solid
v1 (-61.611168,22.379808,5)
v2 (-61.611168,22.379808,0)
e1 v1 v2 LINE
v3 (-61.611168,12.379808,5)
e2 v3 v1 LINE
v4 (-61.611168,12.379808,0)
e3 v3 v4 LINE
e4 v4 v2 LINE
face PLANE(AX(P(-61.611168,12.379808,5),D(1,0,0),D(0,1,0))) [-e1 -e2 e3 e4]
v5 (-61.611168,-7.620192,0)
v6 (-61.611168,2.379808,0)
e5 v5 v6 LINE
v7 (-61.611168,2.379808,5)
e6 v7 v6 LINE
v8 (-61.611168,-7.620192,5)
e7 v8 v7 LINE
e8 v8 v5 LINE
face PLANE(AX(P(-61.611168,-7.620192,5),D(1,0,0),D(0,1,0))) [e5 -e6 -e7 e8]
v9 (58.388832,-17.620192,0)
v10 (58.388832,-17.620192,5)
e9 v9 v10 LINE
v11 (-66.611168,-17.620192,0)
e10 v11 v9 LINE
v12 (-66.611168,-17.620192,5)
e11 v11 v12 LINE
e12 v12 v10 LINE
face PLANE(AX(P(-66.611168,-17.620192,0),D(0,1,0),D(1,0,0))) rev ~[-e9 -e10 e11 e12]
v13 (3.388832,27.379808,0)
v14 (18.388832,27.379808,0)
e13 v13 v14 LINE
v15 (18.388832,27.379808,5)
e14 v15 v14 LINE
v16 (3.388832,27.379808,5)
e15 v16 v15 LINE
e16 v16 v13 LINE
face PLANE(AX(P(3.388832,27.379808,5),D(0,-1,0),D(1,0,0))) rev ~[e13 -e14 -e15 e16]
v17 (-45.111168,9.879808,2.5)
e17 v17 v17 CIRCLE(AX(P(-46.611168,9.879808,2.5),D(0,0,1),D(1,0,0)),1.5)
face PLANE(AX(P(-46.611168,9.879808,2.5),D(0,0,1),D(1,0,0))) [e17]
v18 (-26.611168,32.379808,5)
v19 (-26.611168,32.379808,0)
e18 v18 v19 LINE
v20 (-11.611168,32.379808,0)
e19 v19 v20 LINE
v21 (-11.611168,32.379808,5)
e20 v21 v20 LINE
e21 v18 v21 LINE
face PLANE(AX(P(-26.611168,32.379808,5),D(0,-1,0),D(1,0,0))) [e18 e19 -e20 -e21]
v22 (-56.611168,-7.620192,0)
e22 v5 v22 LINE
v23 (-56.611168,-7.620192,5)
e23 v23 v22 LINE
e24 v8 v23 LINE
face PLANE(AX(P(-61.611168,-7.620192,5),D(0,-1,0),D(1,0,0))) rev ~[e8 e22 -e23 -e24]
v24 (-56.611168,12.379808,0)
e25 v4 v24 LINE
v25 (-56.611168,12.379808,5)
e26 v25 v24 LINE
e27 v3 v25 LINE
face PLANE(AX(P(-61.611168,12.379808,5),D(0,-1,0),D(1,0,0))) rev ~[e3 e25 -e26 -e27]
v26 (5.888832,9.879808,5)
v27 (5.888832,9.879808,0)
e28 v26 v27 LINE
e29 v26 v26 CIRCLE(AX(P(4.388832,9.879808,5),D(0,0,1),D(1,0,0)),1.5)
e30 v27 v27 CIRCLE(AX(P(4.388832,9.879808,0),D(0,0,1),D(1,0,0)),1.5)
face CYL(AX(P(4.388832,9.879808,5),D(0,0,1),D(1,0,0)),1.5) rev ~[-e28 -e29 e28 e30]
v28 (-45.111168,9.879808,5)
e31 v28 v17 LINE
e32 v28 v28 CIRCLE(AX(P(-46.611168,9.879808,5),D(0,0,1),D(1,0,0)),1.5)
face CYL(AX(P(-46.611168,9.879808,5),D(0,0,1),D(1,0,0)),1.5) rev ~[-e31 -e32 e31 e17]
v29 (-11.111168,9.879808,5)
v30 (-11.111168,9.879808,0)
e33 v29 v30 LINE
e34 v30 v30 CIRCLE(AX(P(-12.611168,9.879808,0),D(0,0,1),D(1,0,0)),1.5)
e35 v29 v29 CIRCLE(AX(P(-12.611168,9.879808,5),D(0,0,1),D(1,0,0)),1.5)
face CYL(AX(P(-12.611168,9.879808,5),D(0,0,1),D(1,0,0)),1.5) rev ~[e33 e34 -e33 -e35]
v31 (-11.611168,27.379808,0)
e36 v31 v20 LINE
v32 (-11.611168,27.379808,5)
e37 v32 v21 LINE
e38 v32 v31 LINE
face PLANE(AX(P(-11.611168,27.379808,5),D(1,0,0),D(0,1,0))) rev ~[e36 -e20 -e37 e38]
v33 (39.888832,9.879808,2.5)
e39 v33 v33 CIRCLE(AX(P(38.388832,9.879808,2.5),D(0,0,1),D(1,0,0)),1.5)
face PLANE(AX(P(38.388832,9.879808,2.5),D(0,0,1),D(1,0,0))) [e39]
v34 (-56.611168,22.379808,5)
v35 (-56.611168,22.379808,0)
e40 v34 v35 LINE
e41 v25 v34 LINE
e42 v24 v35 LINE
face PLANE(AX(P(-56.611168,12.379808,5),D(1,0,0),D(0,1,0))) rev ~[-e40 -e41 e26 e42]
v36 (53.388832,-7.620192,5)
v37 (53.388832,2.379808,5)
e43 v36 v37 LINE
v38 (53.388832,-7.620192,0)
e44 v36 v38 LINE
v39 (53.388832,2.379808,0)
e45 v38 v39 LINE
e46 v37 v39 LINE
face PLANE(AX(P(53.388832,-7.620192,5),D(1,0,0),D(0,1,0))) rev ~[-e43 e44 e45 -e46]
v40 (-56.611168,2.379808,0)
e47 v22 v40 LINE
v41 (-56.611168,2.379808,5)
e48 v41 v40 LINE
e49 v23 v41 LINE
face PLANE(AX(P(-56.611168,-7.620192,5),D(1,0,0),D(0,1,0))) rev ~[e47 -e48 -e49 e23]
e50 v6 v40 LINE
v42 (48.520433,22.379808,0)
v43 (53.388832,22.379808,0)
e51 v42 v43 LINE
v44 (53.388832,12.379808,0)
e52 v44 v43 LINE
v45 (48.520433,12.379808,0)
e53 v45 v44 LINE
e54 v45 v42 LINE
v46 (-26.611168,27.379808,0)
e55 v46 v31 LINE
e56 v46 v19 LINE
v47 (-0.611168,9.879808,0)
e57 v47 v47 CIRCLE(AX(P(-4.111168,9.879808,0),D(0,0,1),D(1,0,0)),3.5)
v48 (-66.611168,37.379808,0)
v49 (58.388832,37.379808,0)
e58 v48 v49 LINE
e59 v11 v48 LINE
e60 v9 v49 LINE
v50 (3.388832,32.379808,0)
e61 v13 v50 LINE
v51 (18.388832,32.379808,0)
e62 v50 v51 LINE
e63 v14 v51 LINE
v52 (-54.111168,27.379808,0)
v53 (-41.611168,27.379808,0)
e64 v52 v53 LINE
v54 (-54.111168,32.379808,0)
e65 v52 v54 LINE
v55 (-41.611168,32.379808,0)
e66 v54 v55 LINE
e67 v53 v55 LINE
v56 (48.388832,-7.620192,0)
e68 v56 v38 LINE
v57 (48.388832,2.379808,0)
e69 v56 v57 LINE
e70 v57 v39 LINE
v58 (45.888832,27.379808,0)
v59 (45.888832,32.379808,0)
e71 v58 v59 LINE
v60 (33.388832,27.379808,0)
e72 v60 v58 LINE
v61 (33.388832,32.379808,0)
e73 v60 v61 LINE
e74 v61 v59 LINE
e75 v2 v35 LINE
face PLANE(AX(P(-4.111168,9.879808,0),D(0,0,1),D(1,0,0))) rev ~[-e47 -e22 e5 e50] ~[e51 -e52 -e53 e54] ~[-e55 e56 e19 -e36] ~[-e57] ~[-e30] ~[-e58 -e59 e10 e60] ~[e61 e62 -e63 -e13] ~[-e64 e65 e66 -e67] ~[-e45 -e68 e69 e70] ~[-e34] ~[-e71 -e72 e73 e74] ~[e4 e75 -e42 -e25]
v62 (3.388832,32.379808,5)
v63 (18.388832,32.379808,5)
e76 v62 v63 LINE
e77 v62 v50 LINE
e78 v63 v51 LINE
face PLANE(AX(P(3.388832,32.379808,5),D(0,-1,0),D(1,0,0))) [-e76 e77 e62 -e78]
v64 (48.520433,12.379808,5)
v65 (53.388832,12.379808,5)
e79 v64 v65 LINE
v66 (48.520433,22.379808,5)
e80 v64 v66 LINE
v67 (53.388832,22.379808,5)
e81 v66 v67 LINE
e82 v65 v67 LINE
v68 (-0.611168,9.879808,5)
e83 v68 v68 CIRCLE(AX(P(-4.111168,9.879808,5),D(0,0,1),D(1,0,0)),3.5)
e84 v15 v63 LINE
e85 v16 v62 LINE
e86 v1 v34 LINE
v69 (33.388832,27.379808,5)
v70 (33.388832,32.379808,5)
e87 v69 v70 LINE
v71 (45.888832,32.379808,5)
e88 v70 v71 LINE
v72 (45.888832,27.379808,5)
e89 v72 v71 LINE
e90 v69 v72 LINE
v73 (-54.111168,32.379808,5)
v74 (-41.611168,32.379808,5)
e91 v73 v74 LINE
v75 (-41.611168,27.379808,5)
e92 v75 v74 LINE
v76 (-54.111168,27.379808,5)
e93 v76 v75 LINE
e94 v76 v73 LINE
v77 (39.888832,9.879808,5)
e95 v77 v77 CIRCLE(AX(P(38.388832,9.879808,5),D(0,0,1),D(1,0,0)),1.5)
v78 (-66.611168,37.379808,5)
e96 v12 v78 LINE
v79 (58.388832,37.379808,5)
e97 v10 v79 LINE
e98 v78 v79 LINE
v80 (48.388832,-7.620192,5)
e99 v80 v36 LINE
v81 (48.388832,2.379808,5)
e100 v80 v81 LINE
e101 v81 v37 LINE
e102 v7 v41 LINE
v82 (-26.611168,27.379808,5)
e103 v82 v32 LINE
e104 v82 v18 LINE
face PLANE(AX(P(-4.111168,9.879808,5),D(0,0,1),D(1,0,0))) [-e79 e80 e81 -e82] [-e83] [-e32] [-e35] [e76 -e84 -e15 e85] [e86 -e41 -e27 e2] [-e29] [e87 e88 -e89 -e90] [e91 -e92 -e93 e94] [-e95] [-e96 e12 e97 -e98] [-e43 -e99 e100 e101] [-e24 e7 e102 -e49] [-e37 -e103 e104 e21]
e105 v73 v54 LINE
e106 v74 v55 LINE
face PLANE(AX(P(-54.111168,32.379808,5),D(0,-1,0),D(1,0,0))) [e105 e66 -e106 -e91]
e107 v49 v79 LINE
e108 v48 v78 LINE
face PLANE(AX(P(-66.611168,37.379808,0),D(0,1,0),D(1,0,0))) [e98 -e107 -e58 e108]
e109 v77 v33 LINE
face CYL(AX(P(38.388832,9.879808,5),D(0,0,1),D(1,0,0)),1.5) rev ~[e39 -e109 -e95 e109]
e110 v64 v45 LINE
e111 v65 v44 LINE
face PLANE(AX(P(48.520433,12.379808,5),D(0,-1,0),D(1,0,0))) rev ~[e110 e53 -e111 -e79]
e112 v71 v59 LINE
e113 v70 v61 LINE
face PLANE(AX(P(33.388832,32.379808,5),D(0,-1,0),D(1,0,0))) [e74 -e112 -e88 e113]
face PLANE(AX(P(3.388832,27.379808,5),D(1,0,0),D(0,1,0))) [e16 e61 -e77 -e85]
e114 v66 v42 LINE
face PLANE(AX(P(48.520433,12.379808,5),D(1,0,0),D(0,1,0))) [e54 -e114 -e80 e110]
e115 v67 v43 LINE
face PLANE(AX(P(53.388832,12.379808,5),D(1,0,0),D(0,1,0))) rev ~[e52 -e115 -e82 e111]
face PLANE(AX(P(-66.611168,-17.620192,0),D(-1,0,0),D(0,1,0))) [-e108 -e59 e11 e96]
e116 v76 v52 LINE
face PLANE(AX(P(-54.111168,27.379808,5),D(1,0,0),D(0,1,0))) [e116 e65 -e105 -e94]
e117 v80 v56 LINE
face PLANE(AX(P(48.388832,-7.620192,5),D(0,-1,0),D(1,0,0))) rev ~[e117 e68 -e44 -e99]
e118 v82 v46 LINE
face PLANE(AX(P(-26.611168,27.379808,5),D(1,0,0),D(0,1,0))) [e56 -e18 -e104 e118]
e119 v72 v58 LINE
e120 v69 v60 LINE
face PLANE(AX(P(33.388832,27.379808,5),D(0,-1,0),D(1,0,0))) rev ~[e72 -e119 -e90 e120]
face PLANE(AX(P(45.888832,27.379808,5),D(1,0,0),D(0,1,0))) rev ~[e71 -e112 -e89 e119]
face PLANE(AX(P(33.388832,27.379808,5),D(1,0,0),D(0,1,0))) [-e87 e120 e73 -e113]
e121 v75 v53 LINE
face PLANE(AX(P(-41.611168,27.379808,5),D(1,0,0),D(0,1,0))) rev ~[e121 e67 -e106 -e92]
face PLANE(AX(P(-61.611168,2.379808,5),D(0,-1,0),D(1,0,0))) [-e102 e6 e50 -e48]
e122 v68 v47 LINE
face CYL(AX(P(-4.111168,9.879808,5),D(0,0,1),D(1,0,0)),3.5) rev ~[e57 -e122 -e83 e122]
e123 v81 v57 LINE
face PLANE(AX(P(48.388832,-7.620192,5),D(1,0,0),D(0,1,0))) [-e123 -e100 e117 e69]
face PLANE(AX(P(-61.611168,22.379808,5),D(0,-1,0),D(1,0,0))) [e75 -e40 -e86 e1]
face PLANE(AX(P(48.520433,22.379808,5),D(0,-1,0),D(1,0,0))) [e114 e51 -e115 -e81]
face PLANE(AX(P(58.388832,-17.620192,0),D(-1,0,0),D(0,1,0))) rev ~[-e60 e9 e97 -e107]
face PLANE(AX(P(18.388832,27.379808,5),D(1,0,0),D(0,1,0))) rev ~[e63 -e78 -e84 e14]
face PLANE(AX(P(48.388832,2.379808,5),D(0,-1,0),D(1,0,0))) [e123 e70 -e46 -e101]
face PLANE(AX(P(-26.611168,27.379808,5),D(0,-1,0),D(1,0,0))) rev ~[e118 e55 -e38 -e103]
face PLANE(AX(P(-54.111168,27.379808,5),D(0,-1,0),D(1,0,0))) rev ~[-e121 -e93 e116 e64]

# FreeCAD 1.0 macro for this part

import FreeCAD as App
import Part
import Sketcher

V = App.Vector

doc = App.newDocument("Part")
body = doc.addObject("PartDesign::Body", "Body")

# Sketch on XY plane
sketch1 = body.newObject("Sketcher::SketchObject", "Sketch")
sketch1.AttachmentSupport = (doc.getObject("XY_Plane"), [""])
sketch1.MapMode = "FlatFace"
sketch1.addGeometry([
    Part.LineSegment(V(-66.611168, 37.379808, 0), V(-66.611168, -17.620192, 0)),
    Part.LineSegment(V(-66.611168, -17.620192, 0), V(58.388832, -17.620192, 0)),
    Part.LineSegment(V(58.388832, -17.620192, 0), V(58.388832, 37.379808, 0)),
    Part.LineSegment(V(58.388832, 37.379808, 0), V(-66.611168, 37.379808, 0)),
], False)
sketch1.addConstraint([
    Sketcher.Constraint("Coincident", 0, 2, 1, 1),
    Sketcher.Constraint("Coincident", 1, 2, 2, 1),
    Sketcher.Constraint("Coincident", 2, 2, 3, 1),
    Sketcher.Constraint("Coincident", 3, 2, 0, 1),
    Sketcher.Constraint("Vertical", 0),
    Sketcher.Constraint("Horizontal", 1),
    Sketcher.Constraint("Vertical", 2),
    Sketcher.Constraint("Horizontal", 3),
    Sketcher.Constraint("DistanceX", 1, 1, 1, 2, 125.0),
    Sketcher.Constraint("DistanceY", 0, 2, 0, 1, 55.0),
    Sketcher.Constraint("DistanceX", 0, 2, -1, 1, 66.611168),
    Sketcher.Constraint("DistanceY", 0, 2, -1, 1, 17.620192),
])
pad1 = body.newObject("PartDesign::Pad", "Pad")
pad1.Profile = sketch1
pad1.Length = 5

# Sketch on XY plane
sketch2 = body.newObject("Sketcher::SketchObject", "Sketch001")
sketch2.AttachmentSupport = (doc.getObject("XY_Plane"), [""])
sketch2.MapMode = "FlatFace"
sketch2.AttachmentOffset = App.Placement(V(0, 0, 5), App.Rotation())
sketch2.addGeometry(Part.Circle(V(-4.111168, 9.879808, 0), V(0, 0, 1), 3.5), False)
sketch2.addConstraint([
    Sketcher.Constraint("Diameter", 0, 7.0),
    Sketcher.Constraint("DistanceX", 0, 3, -1, 1, 4.111168),
    Sketcher.Constraint("DistanceY", -1, 1, 0, 3, 9.879808),
])
pocket1 = body.newObject("PartDesign::Pocket", "Pocket")
pocket1.Profile = sketch2
pocket1.Length = 5

# Sketch on XY plane
sketch3 = body.newObject("Sketcher::SketchObject", "Sketch002")
sketch3.AttachmentSupport = (doc.getObject("XY_Plane"), [""])
sketch3.MapMode = "FlatFace"
sketch3.AttachmentOffset = App.Placement(V(0, 0, 5), App.Rotation())
sketch3.addGeometry([
    Part.LineSegment(V(48.520433, 22.379808, 0), V(48.520433, 12.379808, 0)),  # 0
    Part.LineSegment(V(48.520433, 12.379808, 0), V(53.388832, 12.379808, 0)),  # 1
    Part.LineSegment(V(53.388832, 12.379808, 0), V(53.388832, 22.379808, 0)),  # 2
    Part.LineSegment(V(53.388832, 22.379808, 0), V(48.520433, 22.379808, 0)),  # 3
    Part.LineSegment(V(48.388832, 2.379808, 0), V(48.388832, -7.620192, 0)),  # 4
    Part.LineSegment(V(48.388832, -7.620192, 0), V(53.388832, -7.620192, 0)),  # 5
    Part.LineSegment(V(53.388832, -7.620192, 0), V(53.388832, 2.379808, 0)),  # 6
    Part.LineSegment(V(53.388832, 2.379808, 0), V(48.388832, 2.379808, 0)),  # 7
    Part.LineSegment(V(-61.611168, 22.379808, 0), V(-61.611168, 12.379808, 0)),  # 8
    Part.LineSegment(V(-61.611168, 12.379808, 0), V(-56.611168, 12.379808, 0)),  # 9
    Part.LineSegment(V(-56.611168, 12.379808, 0), V(-56.611168, 22.379808, 0)),  # 10
    Part.LineSegment(V(-56.611168, 22.379808, 0), V(-61.611168, 22.379808, 0)),  # 11
    Part.LineSegment(V(-61.611168, 2.379808, 0), V(-61.611168, -7.620192, 0)),  # 12
    Part.LineSegment(V(-61.611168, -7.620192, 0), V(-56.611168, -7.620192, 0)),  # 13
    Part.LineSegment(V(-56.611168, -7.620192, 0), V(-56.611168, 2.379808, 0)),  # 14
    Part.LineSegment(V(-56.611168, 2.379808, 0), V(-61.611168, 2.379808, 0)),  # 15
    Part.LineSegment(V(-54.111168, 32.379808, 0), V(-54.111168, 27.379808, 0)),  # 16
    Part.LineSegment(V(-54.111168, 27.379808, 0), V(-41.611168, 27.379808, 0)),  # 17
    Part.LineSegment(V(-41.611168, 27.379808, 0), V(-41.611168, 32.379808, 0)),  # 18
    Part.LineSegment(V(-41.611168, 32.379808, 0), V(-54.111168, 32.379808, 0)),  # 19
    Part.LineSegment(V(-26.611168, 32.379808, 0), V(-26.611168, 27.379808, 0)),  # 20
    Part.LineSegment(V(-26.611168, 27.379808, 0), V(-11.611168, 27.379808, 0)),  # 21
    Part.LineSegment(V(-11.611168, 27.379808, 0), V(-11.611168, 32.379808, 0)),  # 22
    Part.LineSegment(V(-11.611168, 32.379808, 0), V(-26.611168, 32.379808, 0)),  # 23
    Part.LineSegment(V(3.388832, 32.379808, 0), V(3.388832, 27.379808, 0)),  # 24
    Part.LineSegment(V(3.388832, 27.379808, 0), V(18.388832, 27.379808, 0)),  # 25
    Part.LineSegment(V(18.388832, 27.379808, 0), V(18.388832, 32.379808, 0)),  # 26
    Part.LineSegment(V(18.388832, 32.379808, 0), V(3.388832, 32.379808, 0)),  # 27
    Part.LineSegment(V(33.388832, 32.379808, 0), V(33.388832, 27.379808, 0)),  # 28
    Part.LineSegment(V(33.388832, 27.379808, 0), V(45.888832, 27.379808, 0)),  # 29
    Part.LineSegment(V(45.888832, 27.379808, 0), V(45.888832, 32.379808, 0)),  # 30
    Part.LineSegment(V(45.888832, 32.379808, 0), V(33.388832, 32.379808, 0)),  # 31
], False)
sketch3.addConstraint([
    Sketcher.Constraint("Coincident", 0, 2, 1, 1),
    Sketcher.Constraint("Coincident", 1, 2, 2, 1),
    Sketcher.Constraint("Coincident", 2, 2, 3, 1),
    Sketcher.Constraint("Coincident", 3, 2, 0, 1),
    Sketcher.Constraint("Coincident", 4, 2, 5, 1),
    Sketcher.Constraint("Coincident", 5, 2, 6, 1),
    Sketcher.Constraint("Coincident", 6, 2, 7, 1),
    Sketcher.Constraint("Coincident", 7, 2, 4, 1),
    Sketcher.Constraint("Coincident", 8, 2, 9, 1),
    Sketcher.Constraint("Coincident", 9, 2, 10, 1),
    Sketcher.Constraint("Coincident", 10, 2, 11, 1),
    Sketcher.Constraint("Coincident", 11, 2, 8, 1),
    Sketcher.Constraint("Coincident", 12, 2, 13, 1),
    Sketcher.Constraint("Coincident", 13, 2, 14, 1),
    Sketcher.Constraint("Coincident", 14, 2, 15, 1),
    Sketcher.Constraint("Coincident", 15, 2, 12, 1),
    Sketcher.Constraint("Coincident", 16, 2, 17, 1),
    Sketcher.Constraint("Coincident", 17, 2, 18, 1),
    Sketcher.Constraint("Coincident", 18, 2, 19, 1),
    Sketcher.Constraint("Coincident", 19, 2, 16, 1),
    Sketcher.Constraint("Coincident", 20, 2, 21, 1),
    Sketcher.Constraint("Coincident", 21, 2, 22, 1),
    Sketcher.Constraint("Coincident", 22, 2, 23, 1),
    Sketcher.Constraint("Coincident", 23, 2, 20, 1),
    Sketcher.Constraint("Coincident", 24, 2, 25, 1),
    Sketcher.Constraint("Coincident", 25, 2, 26, 1),
    Sketcher.Constraint("Coincident", 26, 2, 27, 1),
    Sketcher.Constraint("Coincident", 27, 2, 24, 1),
    Sketcher.Constraint("Coincident", 28, 2, 29, 1),
    Sketcher.Constraint("Coincident", 29, 2, 30, 1),
    Sketcher.Constraint("Coincident", 30, 2, 31, 1),
    Sketcher.Constraint("Coincident", 31, 2, 28, 1),
    Sketcher.Constraint("Vertical", 0),
    Sketcher.Constraint("Horizontal", 1),
    Sketcher.Constraint("Vertical", 2),
    Sketcher.Constraint("Horizontal", 3),
    Sketcher.Constraint("Vertical", 4),
    Sketcher.Constraint("Horizontal", 5),
    Sketcher.Constraint("Vertical", 6),
    Sketcher.Constraint("Horizontal", 7),
    Sketcher.Constraint("Vertical", 8),
    Sketcher.Constraint("Horizontal", 9),
    Sketcher.Constraint("Vertical", 10),
    Sketcher.Constraint("Horizontal", 11),
    Sketcher.Constraint("Vertical", 12),
    Sketcher.Constraint("Horizontal", 13),
    Sketcher.Constraint("Vertical", 14),
    Sketcher.Constraint("Horizontal", 15),
    Sketcher.Constraint("Vertical", 16),
    Sketcher.Constraint("Horizontal", 17),
    Sketcher.Constraint("Vertical", 18),
    Sketcher.Constraint("Horizontal", 19),
    Sketcher.Constraint("Vertical", 20),
    Sketcher.Constraint("Horizontal", 21),
    Sketcher.Constraint("Vertical", 22),
    Sketcher.Constraint("Horizontal", 23),
    Sketcher.Constraint("Vertical", 24),
    Sketcher.Constraint("Horizontal", 25),
    Sketcher.Constraint("Vertical", 26),
    Sketcher.Constraint("Horizontal", 27),
    Sketcher.Constraint("Vertical", 28),
    Sketcher.Constraint("Horizontal", 29),
    Sketcher.Constraint("Vertical", 30),
    Sketcher.Constraint("Horizontal", 31),
    Sketcher.Constraint("Horizontal", 1, 2, 8, 2),
    Sketcher.Constraint("Horizontal", 3, 2, 10, 2),
    Sketcher.Constraint("Horizontal", 5, 2, 12, 2),
    Sketcher.Constraint("Horizontal", 7, 2, 14, 2),
    Sketcher.Constraint("Horizontal", 17, 2, 20, 2),
    Sketcher.Constraint("Horizontal", 19, 2, 22, 2),
    Sketcher.Constraint("Horizontal", 21, 2, 24, 2),
    Sketcher.Constraint("Horizontal", 23, 2, 26, 2),
    Sketcher.Constraint("Horizontal", 25, 2, 28, 2),
    Sketcher.Constraint("Horizontal", 27, 2, 30, 2),
    Sketcher.Constraint("Vertical", 2, 2, 5, 2),
    Sketcher.Constraint("Vertical", 11, 2, 12, 2),
    Sketcher.Constraint("Vertical", 10, 2, 13, 2),
    Sketcher.Constraint("Equal", 7, 9),
    Sketcher.Constraint("Equal", 23, 25),
    Sketcher.Constraint("Equal", 19, 29),
    Sketcher.Constraint("Equal", 2, 4),
    Sketcher.Constraint("Equal", 15, 16),
    Sketcher.Constraint("DistanceX", 5, 1, 5, 2, 5.0),
    Sketcher.Constraint("DistanceX", 21, 1, 21, 2, 15.0),
    Sketcher.Constraint("DistanceY", 0, 2, 0, 1, 10.0),
    Sketcher.Constraint("DistanceX", 17, 1, 17, 2, 12.5),
    Sketcher.Constraint("DistanceY", 4, 2, 0, 2, 20.0),
    Sketcher.Constraint("DistanceX", 8, 2, 7, 2, 110.0),
    Sketcher.Constraint("DistanceY", 10, 2, 16, 2, 5.0),
    Sketcher.Constraint("DistanceX", 10, 2, 17, 2, 15.0),
    Sketcher.Constraint("DistanceX", 17, 2, 20, 2, 15.0),
    Sketcher.Constraint("DistanceX", 21, 2, 24, 2, 15.0),
    Sketcher.Constraint("DistanceX", 25, 2, 28, 2, 15.0),
    Sketcher.Constraint("DistanceX", 1, 1, 1, 2, 4.868399),
    Sketcher.Constraint("DistanceX", -1, 1, 1, 2, 53.388832),
    Sketcher.Constraint("DistanceY", -1, 1, 0, 2, 12.379808),
])
pocket2 = body.newObject("PartDesign::Pocket", "Pocket001")
pocket2.Profile = sketch3
pocket2.Length = 5

# Sketch on XY plane
sketch4 = body.newObject("Sketcher::SketchObject", "Sketch003")
sketch4.AttachmentSupport = (doc.getObject("XY_Plane"), [""])
sketch4.MapMode = "FlatFace"
sketch4.AttachmentOffset = App.Placement(V(0, 0, 5), App.Rotation())
sketch4.addGeometry([
    Part.Circle(V(-46.611168, 9.879808, 0), V(0, 0, 1), 1.5),
    Part.Circle(V(38.388832, 9.879808, 0), V(0, 0, 1), 1.5),
], False)
sketch4.addConstraint([
    Sketcher.Constraint("Equal", 0, 1),
    Sketcher.Constraint("Horizontal", 0, 3, 1, 3),
    Sketcher.Constraint("Diameter", 0, 3.0),
    Sketcher.Constraint("DistanceX", 0, 3, 1, 3, 85.0),
    Sketcher.Constraint("DistanceX", 0, 3, -1, 1, 46.611168),
    Sketcher.Constraint("DistanceY", -1, 1, 0, 3, 9.879808),
])
pocket3 = body.newObject("PartDesign::Pocket", "Pocket002")
pocket3.Profile = sketch4
pocket3.Length = 2.5

# Sketch on XY plane
sketch5 = body.newObject("Sketcher::SketchObject", "Sketch004")
sketch5.AttachmentSupport = (doc.getObject("XY_Plane"), [""])
sketch5.MapMode = "FlatFace"
sketch5.AttachmentOffset = App.Placement(V(0, 0, 5), App.Rotation())
sketch5.addGeometry([
    Part.Circle(V(4.388832, 9.879808, 0), V(0, 0, 1), 1.5),
    Part.Circle(V(-12.611168, 9.879808, 0), V(0, 0, 1), 1.5),
], False)
sketch5.addConstraint([
    Sketcher.Constraint("Equal", 0, 1),
    Sketcher.Constraint("Horizontal", 0, 3, 1, 3),
    Sketcher.Constraint("Diameter", 0, 3.0),
    Sketcher.Constraint("DistanceX", 1, 3, 0, 3, 17.0),
    Sketcher.Constraint("DistanceX", -1, 1, 0, 3, 4.388832),
    Sketcher.Constraint("DistanceY", -1, 1, 0, 3, 9.879808),
])
pocket4 = body.newObject("PartDesign::Pocket", "Pocket003")
pocket4.Profile = sketch5
pocket4.Type = "ThroughAll"

doc.recompute()
